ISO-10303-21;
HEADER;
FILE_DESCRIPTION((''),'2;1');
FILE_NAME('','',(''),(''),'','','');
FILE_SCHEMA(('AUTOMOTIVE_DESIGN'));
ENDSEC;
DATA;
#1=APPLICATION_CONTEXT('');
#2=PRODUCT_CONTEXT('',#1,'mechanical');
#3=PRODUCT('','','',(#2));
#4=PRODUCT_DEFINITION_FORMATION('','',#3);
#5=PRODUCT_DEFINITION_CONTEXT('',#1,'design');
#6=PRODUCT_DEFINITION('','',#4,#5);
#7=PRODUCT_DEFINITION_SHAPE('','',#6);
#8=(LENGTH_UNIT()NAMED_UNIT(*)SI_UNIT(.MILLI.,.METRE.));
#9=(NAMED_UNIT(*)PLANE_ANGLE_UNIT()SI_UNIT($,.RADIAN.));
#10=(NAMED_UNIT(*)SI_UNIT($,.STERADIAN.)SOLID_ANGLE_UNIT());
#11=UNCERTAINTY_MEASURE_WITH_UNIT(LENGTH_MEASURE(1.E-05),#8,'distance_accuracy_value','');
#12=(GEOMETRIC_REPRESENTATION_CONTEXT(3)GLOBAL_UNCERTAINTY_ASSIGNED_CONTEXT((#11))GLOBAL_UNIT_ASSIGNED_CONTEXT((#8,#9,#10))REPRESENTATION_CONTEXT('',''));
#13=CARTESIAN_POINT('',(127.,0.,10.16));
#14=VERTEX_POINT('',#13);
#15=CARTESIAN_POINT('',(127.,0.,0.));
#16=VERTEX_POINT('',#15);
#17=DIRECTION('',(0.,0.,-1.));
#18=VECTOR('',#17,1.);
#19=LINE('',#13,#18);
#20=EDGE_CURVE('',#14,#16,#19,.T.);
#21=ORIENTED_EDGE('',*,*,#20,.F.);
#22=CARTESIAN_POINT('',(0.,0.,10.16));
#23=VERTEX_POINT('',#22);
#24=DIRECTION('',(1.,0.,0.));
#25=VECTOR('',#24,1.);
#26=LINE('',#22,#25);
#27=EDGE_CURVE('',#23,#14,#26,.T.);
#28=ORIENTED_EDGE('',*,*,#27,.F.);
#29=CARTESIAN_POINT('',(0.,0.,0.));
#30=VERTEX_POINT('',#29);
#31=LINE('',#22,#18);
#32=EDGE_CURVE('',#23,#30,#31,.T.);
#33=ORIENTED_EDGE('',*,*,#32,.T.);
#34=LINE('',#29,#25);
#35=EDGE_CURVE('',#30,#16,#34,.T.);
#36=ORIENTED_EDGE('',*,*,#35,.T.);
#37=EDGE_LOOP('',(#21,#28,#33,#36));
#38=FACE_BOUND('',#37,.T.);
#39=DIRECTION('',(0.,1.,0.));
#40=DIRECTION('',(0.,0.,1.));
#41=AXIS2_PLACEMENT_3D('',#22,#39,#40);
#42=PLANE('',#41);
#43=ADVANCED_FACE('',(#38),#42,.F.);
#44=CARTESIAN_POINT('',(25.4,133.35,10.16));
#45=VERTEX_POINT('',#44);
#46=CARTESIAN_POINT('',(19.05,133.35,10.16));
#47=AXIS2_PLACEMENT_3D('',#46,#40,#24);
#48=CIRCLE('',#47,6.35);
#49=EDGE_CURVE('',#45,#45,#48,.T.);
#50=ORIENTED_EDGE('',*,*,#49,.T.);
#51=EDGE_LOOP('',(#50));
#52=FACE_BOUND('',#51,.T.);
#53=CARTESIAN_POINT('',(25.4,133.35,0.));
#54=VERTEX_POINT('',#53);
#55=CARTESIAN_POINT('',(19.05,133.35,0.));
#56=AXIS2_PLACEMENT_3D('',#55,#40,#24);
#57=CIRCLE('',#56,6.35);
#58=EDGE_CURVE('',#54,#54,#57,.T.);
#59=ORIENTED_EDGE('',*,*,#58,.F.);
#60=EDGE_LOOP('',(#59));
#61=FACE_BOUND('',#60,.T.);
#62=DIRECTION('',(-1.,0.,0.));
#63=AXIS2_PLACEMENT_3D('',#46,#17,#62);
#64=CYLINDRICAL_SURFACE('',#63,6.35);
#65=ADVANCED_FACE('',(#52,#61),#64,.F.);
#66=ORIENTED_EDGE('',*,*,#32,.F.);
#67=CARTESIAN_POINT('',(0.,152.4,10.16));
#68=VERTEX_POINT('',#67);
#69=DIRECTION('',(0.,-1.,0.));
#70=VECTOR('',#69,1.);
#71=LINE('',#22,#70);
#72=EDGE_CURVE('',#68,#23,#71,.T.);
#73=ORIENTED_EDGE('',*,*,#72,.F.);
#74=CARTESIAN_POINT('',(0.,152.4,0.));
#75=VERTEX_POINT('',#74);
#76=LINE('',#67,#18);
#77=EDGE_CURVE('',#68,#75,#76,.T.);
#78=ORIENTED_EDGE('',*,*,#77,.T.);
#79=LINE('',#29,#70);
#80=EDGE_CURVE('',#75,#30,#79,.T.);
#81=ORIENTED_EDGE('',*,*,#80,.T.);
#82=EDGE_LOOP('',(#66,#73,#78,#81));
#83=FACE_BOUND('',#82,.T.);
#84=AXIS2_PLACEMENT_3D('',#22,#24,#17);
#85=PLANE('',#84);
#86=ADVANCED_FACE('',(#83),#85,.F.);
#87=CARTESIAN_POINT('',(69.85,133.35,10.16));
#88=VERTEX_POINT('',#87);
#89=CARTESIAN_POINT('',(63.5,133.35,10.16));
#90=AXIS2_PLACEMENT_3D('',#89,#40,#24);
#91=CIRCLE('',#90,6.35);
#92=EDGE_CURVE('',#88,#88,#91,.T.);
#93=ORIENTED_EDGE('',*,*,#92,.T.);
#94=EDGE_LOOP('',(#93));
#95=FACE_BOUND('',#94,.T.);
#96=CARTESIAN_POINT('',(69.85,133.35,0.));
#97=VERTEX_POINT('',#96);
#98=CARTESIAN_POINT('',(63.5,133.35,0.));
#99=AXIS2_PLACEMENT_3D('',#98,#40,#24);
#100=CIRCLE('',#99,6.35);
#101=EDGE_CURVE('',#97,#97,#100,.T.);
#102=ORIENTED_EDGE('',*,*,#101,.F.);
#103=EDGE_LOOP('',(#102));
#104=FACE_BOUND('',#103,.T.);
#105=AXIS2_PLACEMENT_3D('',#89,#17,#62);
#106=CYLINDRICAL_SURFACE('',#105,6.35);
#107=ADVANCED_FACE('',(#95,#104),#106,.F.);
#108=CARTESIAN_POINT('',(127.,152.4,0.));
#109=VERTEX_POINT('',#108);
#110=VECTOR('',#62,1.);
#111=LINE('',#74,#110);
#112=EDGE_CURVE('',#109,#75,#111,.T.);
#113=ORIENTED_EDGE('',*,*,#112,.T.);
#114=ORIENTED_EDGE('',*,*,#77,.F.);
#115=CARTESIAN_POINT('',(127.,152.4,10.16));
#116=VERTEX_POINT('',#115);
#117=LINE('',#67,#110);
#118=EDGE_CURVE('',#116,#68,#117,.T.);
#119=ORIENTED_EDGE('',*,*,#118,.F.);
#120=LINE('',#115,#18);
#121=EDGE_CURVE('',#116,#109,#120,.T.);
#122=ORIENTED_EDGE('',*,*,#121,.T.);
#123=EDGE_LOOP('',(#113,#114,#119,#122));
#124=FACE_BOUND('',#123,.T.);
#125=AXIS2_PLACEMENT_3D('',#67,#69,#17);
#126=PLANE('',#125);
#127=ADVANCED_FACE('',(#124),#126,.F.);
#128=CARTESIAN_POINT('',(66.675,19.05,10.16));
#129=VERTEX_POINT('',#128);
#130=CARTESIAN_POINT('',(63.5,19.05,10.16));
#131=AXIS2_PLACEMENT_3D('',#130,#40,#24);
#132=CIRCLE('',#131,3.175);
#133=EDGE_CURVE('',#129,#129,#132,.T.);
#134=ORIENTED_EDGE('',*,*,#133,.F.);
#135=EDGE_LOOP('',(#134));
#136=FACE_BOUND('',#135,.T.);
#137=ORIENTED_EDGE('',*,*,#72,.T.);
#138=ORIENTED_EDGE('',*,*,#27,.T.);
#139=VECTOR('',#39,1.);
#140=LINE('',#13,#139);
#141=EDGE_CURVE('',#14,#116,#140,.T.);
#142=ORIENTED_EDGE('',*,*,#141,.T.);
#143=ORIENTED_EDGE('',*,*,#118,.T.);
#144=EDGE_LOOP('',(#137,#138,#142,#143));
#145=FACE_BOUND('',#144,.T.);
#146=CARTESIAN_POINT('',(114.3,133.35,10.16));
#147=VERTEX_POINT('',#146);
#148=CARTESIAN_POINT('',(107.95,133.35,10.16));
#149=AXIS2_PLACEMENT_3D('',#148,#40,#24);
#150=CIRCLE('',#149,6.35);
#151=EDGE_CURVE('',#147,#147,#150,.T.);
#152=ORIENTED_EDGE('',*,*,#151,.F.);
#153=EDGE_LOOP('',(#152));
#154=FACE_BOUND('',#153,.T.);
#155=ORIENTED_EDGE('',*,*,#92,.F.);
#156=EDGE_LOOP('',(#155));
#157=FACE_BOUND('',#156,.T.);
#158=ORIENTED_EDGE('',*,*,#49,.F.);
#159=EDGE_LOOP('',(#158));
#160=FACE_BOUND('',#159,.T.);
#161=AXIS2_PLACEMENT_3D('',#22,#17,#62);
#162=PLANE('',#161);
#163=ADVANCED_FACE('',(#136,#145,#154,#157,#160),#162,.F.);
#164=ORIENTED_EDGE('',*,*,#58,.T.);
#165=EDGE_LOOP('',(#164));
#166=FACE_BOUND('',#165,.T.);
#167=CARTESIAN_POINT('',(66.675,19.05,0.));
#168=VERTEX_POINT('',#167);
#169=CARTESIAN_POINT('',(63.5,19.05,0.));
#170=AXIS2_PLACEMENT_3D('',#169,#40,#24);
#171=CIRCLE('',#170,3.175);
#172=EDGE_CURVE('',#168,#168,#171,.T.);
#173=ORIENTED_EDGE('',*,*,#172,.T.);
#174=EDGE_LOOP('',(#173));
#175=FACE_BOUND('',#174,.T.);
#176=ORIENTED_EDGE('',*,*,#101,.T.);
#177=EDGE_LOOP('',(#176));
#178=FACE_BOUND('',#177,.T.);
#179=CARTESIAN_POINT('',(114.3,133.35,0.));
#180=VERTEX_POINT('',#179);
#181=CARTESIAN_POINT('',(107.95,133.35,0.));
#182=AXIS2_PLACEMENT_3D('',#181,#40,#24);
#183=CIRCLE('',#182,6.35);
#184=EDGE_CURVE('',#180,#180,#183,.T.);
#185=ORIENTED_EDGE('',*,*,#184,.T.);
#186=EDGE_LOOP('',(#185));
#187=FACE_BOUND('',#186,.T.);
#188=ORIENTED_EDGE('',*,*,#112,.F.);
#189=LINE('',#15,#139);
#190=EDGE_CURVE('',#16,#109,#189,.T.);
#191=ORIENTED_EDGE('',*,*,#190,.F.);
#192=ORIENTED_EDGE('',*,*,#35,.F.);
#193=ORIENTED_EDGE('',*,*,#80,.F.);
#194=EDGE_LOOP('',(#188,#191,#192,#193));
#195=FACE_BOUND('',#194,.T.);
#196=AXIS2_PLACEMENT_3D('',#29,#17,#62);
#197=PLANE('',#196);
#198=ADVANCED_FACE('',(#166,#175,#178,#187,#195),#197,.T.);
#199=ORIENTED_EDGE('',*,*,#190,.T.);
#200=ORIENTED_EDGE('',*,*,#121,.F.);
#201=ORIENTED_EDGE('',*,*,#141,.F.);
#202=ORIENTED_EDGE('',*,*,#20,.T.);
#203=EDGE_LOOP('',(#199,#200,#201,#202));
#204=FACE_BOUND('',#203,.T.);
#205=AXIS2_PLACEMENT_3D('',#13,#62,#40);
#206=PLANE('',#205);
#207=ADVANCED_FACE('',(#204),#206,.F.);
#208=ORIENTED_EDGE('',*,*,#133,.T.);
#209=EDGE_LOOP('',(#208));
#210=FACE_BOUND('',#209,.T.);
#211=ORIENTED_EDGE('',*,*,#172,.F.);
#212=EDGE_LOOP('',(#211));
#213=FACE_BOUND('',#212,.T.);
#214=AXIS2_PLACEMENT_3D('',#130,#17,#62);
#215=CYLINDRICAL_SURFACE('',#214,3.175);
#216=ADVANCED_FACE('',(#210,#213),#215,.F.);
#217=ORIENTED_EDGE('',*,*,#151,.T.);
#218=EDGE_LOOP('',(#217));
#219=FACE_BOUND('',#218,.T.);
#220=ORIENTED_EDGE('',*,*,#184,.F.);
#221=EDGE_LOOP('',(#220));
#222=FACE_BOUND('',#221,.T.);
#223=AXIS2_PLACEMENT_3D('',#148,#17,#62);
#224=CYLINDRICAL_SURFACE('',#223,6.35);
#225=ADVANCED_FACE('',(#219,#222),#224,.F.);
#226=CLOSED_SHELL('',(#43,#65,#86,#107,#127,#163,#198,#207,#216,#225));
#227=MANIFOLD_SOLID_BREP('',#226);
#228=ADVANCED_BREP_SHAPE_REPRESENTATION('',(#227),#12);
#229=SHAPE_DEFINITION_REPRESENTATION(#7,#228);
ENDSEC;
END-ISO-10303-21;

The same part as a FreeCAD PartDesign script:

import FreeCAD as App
import Part
import Sketcher
Q = App.Units.Quantity


def add_polygon(sketch, points):
    """Adds a closed chain of lines whose ends are joined by coincident constraints."""
    first, n = sketch.GeometryCount, len(points)
    for a, b in zip(points, points[1:] + points[:1]):
        sketch.addGeometry(Part.LineSegment(App.Vector(*a, 0), App.Vector(*b, 0)), False)
    for i in range(n):
        sketch.addConstraint(Sketcher.Constraint("Coincident", first + i, 2, first + (i + 1) % n, 1))

doc = App.newDocument("Part")
body = doc.addObject("PartDesign::Body", "Body")

# Sketch on XY plane
sketch1 = body.newObject("Sketcher::SketchObject", "Sketch")
sketch1.AttachmentSupport = (doc.getObject("XY_Plane"), [""])
sketch1.MapMode = "FlatFace"
add_polygon(sketch1, [(0, 152.4), (0, 0), (127, 0), (127, 152.4)])  # lines 0-3
sketch1.addGeometry(Part.Circle(App.Vector(63.5, 19.05, 0), App.Vector(0, 0, 1), 3.175), False)  # 4
sketch1.addGeometry(Part.Circle(App.Vector(19.05, 133.35, 0), App.Vector(0, 0, 1), 6.35), False)  # 5
sketch1.addGeometry(Part.Circle(App.Vector(63.5, 133.35, 0), App.Vector(0, 0, 1), 6.35), False)  # 6
sketch1.addGeometry(Part.Circle(App.Vector(107.95, 133.35, 0), App.Vector(0, 0, 1), 6.35), False)  # 7
sketch1.addConstraint([
    Sketcher.Constraint("Vertical", 0),
    Sketcher.Constraint("Horizontal", 1),
    Sketcher.Constraint("Vertical", 2),
    Sketcher.Constraint("Horizontal", 3),
    Sketcher.Constraint("Coincident", 0, 2, -1, 1),
    Sketcher.Constraint("Equal", 5, 6),
    Sketcher.Constraint("Equal", 6, 7),
    Sketcher.Constraint("Horizontal", 5, 3, 6, 3),
    Sketcher.Constraint("Horizontal", 6, 3, 7, 3),
    Sketcher.Constraint("Vertical", 4, 3, 6, 3),
    Sketcher.Constraint("Diameter", 5, Q("0.5 in")),
    Sketcher.Constraint("Diameter", 4, Q("0.25 in")),
    Sketcher.Constraint("DistanceX", 1, 1, 1, 2, Q("5 in")),
    Sketcher.Constraint("DistanceY", 0, 2, 0, 1, Q("6 in")),
    Sketcher.Constraint("DistanceX", -1, 1, 4, 3, Q("2.5 in")),
    Sketcher.Constraint("DistanceY", 4, 3, 5, 3, Q("4.5 in")),
    Sketcher.Constraint("DistanceX", 5, 3, 7, 3, Q("3.5 in")),
    Sketcher.Constraint("DistanceY", -1, 1, 4, 3, Q("0.75 in")),
    Sketcher.Constraint("DistanceX", -1, 1, 5, 3, Q("0.75 in")),
])
pad1 = body.newObject("PartDesign::Pad", "Pad")
pad1.Profile = sketch1
pad1.Length = Q("0.4 in")

doc.recompute()
